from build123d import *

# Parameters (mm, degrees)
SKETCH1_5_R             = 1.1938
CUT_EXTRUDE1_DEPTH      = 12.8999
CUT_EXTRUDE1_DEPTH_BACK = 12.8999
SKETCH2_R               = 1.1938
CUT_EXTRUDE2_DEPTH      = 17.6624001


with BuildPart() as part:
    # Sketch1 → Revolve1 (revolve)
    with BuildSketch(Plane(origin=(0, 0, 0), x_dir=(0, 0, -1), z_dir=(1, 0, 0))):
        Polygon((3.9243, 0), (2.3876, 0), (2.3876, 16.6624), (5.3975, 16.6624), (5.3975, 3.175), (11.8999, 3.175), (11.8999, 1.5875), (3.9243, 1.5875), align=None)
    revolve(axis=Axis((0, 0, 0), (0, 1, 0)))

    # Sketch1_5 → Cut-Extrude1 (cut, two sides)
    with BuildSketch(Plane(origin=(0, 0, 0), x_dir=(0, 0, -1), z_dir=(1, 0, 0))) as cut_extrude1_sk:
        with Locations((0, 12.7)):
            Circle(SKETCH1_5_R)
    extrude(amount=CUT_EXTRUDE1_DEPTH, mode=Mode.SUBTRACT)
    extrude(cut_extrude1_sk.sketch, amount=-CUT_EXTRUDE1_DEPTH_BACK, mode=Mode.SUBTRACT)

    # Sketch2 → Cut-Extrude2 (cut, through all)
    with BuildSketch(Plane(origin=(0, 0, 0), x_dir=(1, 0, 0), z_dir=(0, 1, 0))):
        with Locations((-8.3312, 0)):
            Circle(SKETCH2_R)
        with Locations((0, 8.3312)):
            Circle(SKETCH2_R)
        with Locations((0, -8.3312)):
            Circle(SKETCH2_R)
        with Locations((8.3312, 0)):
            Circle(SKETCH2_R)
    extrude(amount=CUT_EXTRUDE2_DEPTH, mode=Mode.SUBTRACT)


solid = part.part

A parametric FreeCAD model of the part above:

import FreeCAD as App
import Part
import Sketcher

V = App.Vector
Q = App.Units.Quantity


def add_polygon(sketch, points):
    """Adds a closed chain of lines whose ends are joined by coincident constraints."""
    first, n = sketch.GeometryCount, len(points)
    for a, b in zip(points, points[1:] + points[:1]):
        sketch.addGeometry(Part.LineSegment(App.Vector(*a, 0), App.Vector(*b, 0)), False)
    for i in range(n):
        sketch.addConstraint(Sketcher.Constraint("Coincident", first + i, 2, first + (i + 1) % n, 1))

doc = App.newDocument("Part")
body = doc.addObject("PartDesign::Body", "Body")

sketch1 = doc.addObject("Sketcher::SketchObject", "Sketch")
body.addObject(sketch1)
sketch1.AttachmentSupport = (doc.YZ_Plane, [""])
sketch1.MapMode = "FlatFace"
add_polygon(sketch1, [(0, -2.3876), (0, -3.9243), (1.5875, -3.9243), (1.5875, -11.8999), (3.175, -11.8999), (3.175, -5.3975), (16.6624, -5.3975), (16.6624, -2.3876)])
sketch1.addConstraint(Sketcher.Constraint("Vertical", 0))
sketch1.addConstraint(Sketcher.Constraint("Horizontal", 1))
sketch1.addConstraint(Sketcher.Constraint("Vertical", 2))
sketch1.addConstraint(Sketcher.Constraint("Horizontal", 3))
sketch1.addConstraint(Sketcher.Constraint("Vertical", 4))
sketch1.addConstraint(Sketcher.Constraint("Horizontal", 5))
sketch1.addConstraint(Sketcher.Constraint("Vertical", 6))
sketch1.addConstraint(Sketcher.Constraint("Horizontal", 7))
sketch1.addConstraint(Sketcher.Constraint("PointOnObject", 0, 2, -2))
sketch1.addConstraint(Sketcher.Constraint("Equal", 1, 3))
sketch1.addConstraint(Sketcher.Constraint("DistanceX", 1, 1, 1, 2, Q("0.0625 in")))
sketch1.addConstraint(Sketcher.Constraint("DistanceX", 5, 1, 5, 2, Q("0.531 in")))
sketch1.addConstraint(Sketcher.Constraint("DistanceY", 2, 2, 2, 1, Q("0.314 in")))
sketch1.addConstraint(Sketcher.Constraint("DistanceY", 4, 1, 4, 2, Q("0.256 in")))
sketch1.addConstraint(Sketcher.Constraint("DistanceY", 0, 2, 0, 1, Q("0.0605 in")))
sketch1.addConstraint(Sketcher.Constraint("DistanceY", 6, 2, -1, 1, Q("0.094 in")))
revolution = doc.addObject("PartDesign::Revolution", "Revolution")
body.addObject(revolution)
revolution.Profile = sketch1
revolution.ReferenceAxis = (sketch1, ["H_Axis"])
revolution.Angle = 360

sketch2 = doc.addObject("Sketcher::SketchObject", "Sketch001")
body.addObject(sketch2)
sketch2.AttachmentSupport = (doc.YZ_Plane, [""])
sketch2.MapMode = "FlatFace"
sketch2.addGeometry(Part.Circle(V(12.7, 0, 0), V(0, 0, 1), 1.1938), False)
sketch2.addConstraint(Sketcher.Constraint("PointOnObject", 0, 3, -1))
sketch2.addConstraint(Sketcher.Constraint("Diameter", 0, Q("0.094 in")))
sketch2.addConstraint(Sketcher.Constraint("DistanceX", -1, 1, 0, 3, Q("0.5 in")))
pocket1 = doc.addObject("PartDesign::Pocket", "Pocket")
body.addObject(pocket1)
pocket1.Profile = sketch2
pocket1.Type = "ThroughAll"
pocket1.Midplane = True

sketch3 = doc.addObject("Sketcher::SketchObject", "Sketch002")
body.addObject(sketch3)
sketch3.AttachmentSupport = (doc.XZ_Plane, [""])
sketch3.MapMode = "FlatFace"
sketch3.addGeometry(Part.Circle(V(-8.3312, 0, 0), V(0, 0, 1), 1.1938), False)
sketch3.addGeometry(Part.Circle(V(0, -8.3312, 0), V(0, 0, 1), 1.1938), False)
sketch3.addGeometry(Part.Circle(V(0, 8.3312, 0), V(0, 0, 1), 1.1938), False)
sketch3.addGeometry(Part.Circle(V(8.3312, 0, 0), V(0, 0, 1), 1.1938), False)
sketch3.addConstraint(Sketcher.Constraint("Equal", 0, 1))
sketch3.addConstraint(Sketcher.Constraint("Equal", 1, 2))
sketch3.addConstraint(Sketcher.Constraint("Equal", 2, 3))
sketch3.addConstraint(Sketcher.Constraint("Symmetric", 1, 3, 2, 3, -1, 1))
sketch3.addConstraint(Sketcher.Constraint("Symmetric", 0, 3, 3, 3, -1, 1))
sketch3.addConstraint(Sketcher.Constraint("PointOnObject", 0, 3, -1))
sketch3.addConstraint(Sketcher.Constraint("PointOnObject", 1, 3, -2))
sketch3.addConstraint(Sketcher.Constraint("Diameter", 0, Q("0.094 in")))
sketch3.addConstraint(Sketcher.Constraint("DistanceX", 0, 3, -1, 1, Q("0.328 in")))
sketch3.addConstraint(Sketcher.Constraint("DistanceY", 1, 3, -1, 1, Q("0.328 in")))
pocket2 = doc.addObject("PartDesign::Pocket", "Pocket001")
body.addObject(pocket2)
pocket2.Profile = sketch3
pocket2.Type = "ThroughAll"

doc.recompute()
